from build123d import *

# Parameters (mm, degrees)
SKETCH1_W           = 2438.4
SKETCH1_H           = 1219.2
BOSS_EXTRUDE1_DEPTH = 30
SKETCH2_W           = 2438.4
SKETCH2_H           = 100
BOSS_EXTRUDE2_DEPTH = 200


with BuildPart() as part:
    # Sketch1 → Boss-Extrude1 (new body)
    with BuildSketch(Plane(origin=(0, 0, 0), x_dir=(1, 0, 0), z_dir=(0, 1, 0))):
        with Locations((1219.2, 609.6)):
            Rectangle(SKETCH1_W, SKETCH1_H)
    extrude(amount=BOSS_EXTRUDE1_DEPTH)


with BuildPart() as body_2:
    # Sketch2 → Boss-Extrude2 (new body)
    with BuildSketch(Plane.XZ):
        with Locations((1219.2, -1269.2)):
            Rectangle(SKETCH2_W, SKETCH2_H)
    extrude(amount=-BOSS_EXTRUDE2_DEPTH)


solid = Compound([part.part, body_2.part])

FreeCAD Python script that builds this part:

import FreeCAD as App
import Part
import Sketcher
from FreeCAD import Vector
Q = App.Units.Quantity

doc = App.newDocument("Part")
params = doc.addObject("Spreadsheet::Sheet", "Params")
for row, (alias, value) in enumerate([
    ("sketch1_width", "2438.4 mm"),
    ("sketch1_height", "1219.2 mm"),
    ("pad1_length", "30 mm"),
    ("sketch2_height", "100 mm"),
    ("sketch2_width", "2438.4 mm"),
    ("pad2_length", "200 mm"),
], start=1):
    params.set(f"A{row}", alias)
    params.set(f"B{row}", "=" + value)
    params.setAlias(f"B{row}", alias)

body = doc.addObject("PartDesign::Body", "Body")

# Sketch on XZ plane
sketch1 = doc.addObject("Sketcher::SketchObject", "Sketch")
body.addObject(sketch1)
sketch1.AttachmentSupport = (doc.XZ_Plane, [""])
sketch1.MapMode = "FlatFace"
sketch1.addGeometry([
    Part.LineSegment(Vector(0, -1219, 0), Vector(0, 0, 0)),
    Part.LineSegment(Vector(0, 0, 0), Vector(2438, 0, 0)),
    Part.LineSegment(Vector(2438, 0, 0), Vector(2438, -1219, 0)),
    Part.LineSegment(Vector(2438, -1219, 0), Vector(0, -1219, 0)),
], False)
sketch1.addConstraint([
    Sketcher.Constraint("Coincident", 0, 2, 1, 1),
    Sketcher.Constraint("Coincident", 1, 2, 2, 1),
    Sketcher.Constraint("Coincident", 2, 2, 3, 1),
    Sketcher.Constraint("Coincident", 3, 2, 0, 1),
    Sketcher.Constraint("Vertical", 0),
    Sketcher.Constraint("Horizontal", 1),
    Sketcher.Constraint("Vertical", 2),
    Sketcher.Constraint("Horizontal", 3),
    Sketcher.Constraint("Coincident", 0, 2, -1, 1),
    Sketcher.Constraint("DistanceX", 1, 1, 1, 2, Q("2438.4 mm")),
    Sketcher.Constraint("DistanceY", 0, 1, 0, 2, Q("1219.2 mm")),
])
sketch1.setExpression("Constraints[9]", "Params.sketch1_width")
sketch1.setExpression("Constraints[10]", "Params.sketch1_height")
pad1 = doc.addObject("PartDesign::Pad", "Pad")
body.addObject(pad1)
pad1.Profile = sketch1
pad1.setExpression("Length", "Params.pad1_length")
pad1.Reversed = True
body2 = doc.addObject("PartDesign::Body", "Body001")

# Sketch on XZ plane
sketch2 = doc.addObject("Sketcher::SketchObject", "Sketch001")
body2.addObject(sketch2)
sketch2.AttachmentSupport = (doc.getObject("XZ_Plane001"), [""])
sketch2.MapMode = "FlatFace"
sketch2.addGeometry([
    Part.LineSegment(Vector(0, -1219, 0), Vector(0, -1319, 0)),
    Part.LineSegment(Vector(0, -1319, 0), Vector(2438, -1319, 0)),
    Part.LineSegment(Vector(2438, -1319, 0), Vector(2438, -1219, 0)),
    Part.LineSegment(Vector(2438, -1219, 0), Vector(0, -1219, 0)),
], False)
sketch2.addConstraint([
    Sketcher.Constraint("Coincident", 0, 2, 1, 1),
    Sketcher.Constraint("Coincident", 1, 2, 2, 1),
    Sketcher.Constraint("Coincident", 2, 2, 3, 1),
    Sketcher.Constraint("Coincident", 3, 2, 0, 1),
    Sketcher.Constraint("Vertical", 0),
    Sketcher.Constraint("Horizontal", 1),
    Sketcher.Constraint("Vertical", 2),
    Sketcher.Constraint("Horizontal", 3),
    Sketcher.Constraint("PointOnObject", 0, 2, -2),
    Sketcher.Constraint("DistanceY", 0, 2, 0, 1, Q("100 mm")),
    Sketcher.Constraint("DistanceX", 1, 1, 1, 2, Q("2438.4 mm")),
    Sketcher.Constraint("DistanceY", 0, 2, -1, 1, Q("1319.2 mm")),
])
sketch2.setExpression("Constraints[9]", "Params.sketch2_height")
sketch2.setExpression("Constraints[10]", "Params.sketch2_width")
pad2 = doc.addObject("PartDesign::Pad", "Pad001")
body2.addObject(pad2)
pad2.Profile = sketch2
pad2.setExpression("Length", "Params.pad2_length")
pad2.Reversed = True

doc.recompute()
